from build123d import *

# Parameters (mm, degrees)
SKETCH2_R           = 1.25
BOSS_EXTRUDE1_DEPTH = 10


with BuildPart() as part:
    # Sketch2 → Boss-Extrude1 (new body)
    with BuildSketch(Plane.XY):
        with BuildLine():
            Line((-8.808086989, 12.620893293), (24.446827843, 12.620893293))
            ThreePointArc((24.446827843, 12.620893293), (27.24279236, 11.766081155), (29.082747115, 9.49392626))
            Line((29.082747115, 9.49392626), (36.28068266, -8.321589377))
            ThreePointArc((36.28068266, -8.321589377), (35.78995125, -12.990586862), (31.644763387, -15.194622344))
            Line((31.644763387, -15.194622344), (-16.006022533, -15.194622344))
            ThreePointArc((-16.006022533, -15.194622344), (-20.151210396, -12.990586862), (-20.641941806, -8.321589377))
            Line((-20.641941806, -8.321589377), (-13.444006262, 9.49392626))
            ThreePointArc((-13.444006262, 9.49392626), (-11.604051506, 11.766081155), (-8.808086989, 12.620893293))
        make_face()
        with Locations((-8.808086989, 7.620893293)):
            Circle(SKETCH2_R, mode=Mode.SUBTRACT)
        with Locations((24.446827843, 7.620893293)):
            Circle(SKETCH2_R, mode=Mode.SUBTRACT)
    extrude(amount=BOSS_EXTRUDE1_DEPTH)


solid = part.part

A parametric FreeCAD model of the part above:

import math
import FreeCAD as App
import Part
import Sketcher
Q = App.Units.Quantity

doc = App.newDocument("Part")
params = doc.addObject("Spreadsheet::Sheet", "Params")
for row, (alias, value) in enumerate([
    ("sketch1_radius", "5 mm"),
    ("sketch1_diameter", "2.5 mm"),
    ("pad1_length", "10 mm"),
], start=1):
    params.set(f"A{row}", alias)
    params.set(f"B{row}", "=" + value)
    params.setAlias(f"B{row}", alias)

body = doc.addObject("PartDesign::Body", "Body")

# Sketch on XY plane
sketch1 = body.newObject("Sketcher::SketchObject", "Sketch")
sketch1.AttachmentSupport = (doc.getObject("XY_Plane"), [""])
sketch1.MapMode = "FlatFace"
sketch1.addGeometry([
    Part.LineSegment(App.Vector(24.4, 12.6, 0), App.Vector(-8.8, 12.6, 0)),  # 0
    Part.ArcOfCircle(Part.Circle(App.Vector(-8.8, 7.6, 0), App.Vector(0, 0, 1), 5), math.radians(90), math.radians(158)),  # 1
    Part.LineSegment(App.Vector(-13.4, 9.5, 0), App.Vector(-20.6, -8.3, 0)),  # 2
    Part.ArcOfCircle(Part.Circle(App.Vector(-16, -10.2, 0), App.Vector(0, 0, 1), 5), math.radians(158), math.radians(270)),  # 3
    Part.LineSegment(App.Vector(-16, -15.2, 0), App.Vector(31.6, -15.2, 0)),  # 4
    Part.ArcOfCircle(Part.Circle(App.Vector(31.6, -10.2, 0), App.Vector(0, 0, 1), 5), math.radians(-90), math.radians(22)),  # 5
    Part.LineSegment(App.Vector(36.3, -8.3, 0), App.Vector(29.1, 9.5, 0)),  # 6
    Part.ArcOfCircle(Part.Circle(App.Vector(24.4, 7.6, 0), App.Vector(0, 0, 1), 5), math.radians(22), math.radians(90)),  # 7
    Part.Circle(App.Vector(24.4, 7.6, 0), App.Vector(0, 0, 1), 1.2),  # 8
    Part.Circle(App.Vector(-8.8, 7.6, 0), App.Vector(0, 0, 1), 1.2),  # 9
], False)
sketch1.addConstraint([
    Sketcher.Constraint("Tangent", 0, 2, 1, 1),
    Sketcher.Constraint("Tangent", 1, 2, 2, 1),
    Sketcher.Constraint("Tangent", 2, 2, 3, 1),
    Sketcher.Constraint("Tangent", 3, 2, 4, 1),
    Sketcher.Constraint("Tangent", 4, 2, 5, 1),
    Sketcher.Constraint("Tangent", 5, 2, 6, 1),
    Sketcher.Constraint("Tangent", 6, 2, 7, 1),
    Sketcher.Constraint("Tangent", 7, 2, 0, 1),
    Sketcher.Constraint("Horizontal", 0),
    Sketcher.Constraint("Horizontal", 4),
    Sketcher.Constraint("Coincident", 8, 3, 7, 3),
    Sketcher.Constraint("Coincident", 9, 3, 1, 3),
    Sketcher.Constraint("Equal", 1, 3),
    Sketcher.Constraint("Equal", 3, 5),
    Sketcher.Constraint("Equal", 5, 7),
    Sketcher.Constraint("Equal", 8, 9),
    Sketcher.Constraint("Horizontal", 2, 2, 5, 2),
    Sketcher.Constraint("Radius", 1, 5.0),
    Sketcher.Constraint("Diameter", 8, 2.5),
    Sketcher.Constraint("Angle", 2, Q("-112 deg")),
    Sketcher.Constraint("DistanceX", 0, 2, 0, 1, 33.254915),
    Sketcher.Constraint("DistanceX", 4, 1, 4, 2, 47.650786),
    Sketcher.Constraint("DistanceX", 2, 2, -1, 1, 20.641942),
    Sketcher.Constraint("DistanceY", 2, 2, -1, 1, 8.321589),
])
sketch1.setExpression("Constraints[17]", "Params.sketch1_radius")
sketch1.setExpression("Constraints[18]", "Params.sketch1_diameter")
pad1 = body.newObject("PartDesign::Pad", "Pad")
pad1.Profile = sketch1
pad1.setExpression("Length", "Params.pad1_length")

doc.recompute()
